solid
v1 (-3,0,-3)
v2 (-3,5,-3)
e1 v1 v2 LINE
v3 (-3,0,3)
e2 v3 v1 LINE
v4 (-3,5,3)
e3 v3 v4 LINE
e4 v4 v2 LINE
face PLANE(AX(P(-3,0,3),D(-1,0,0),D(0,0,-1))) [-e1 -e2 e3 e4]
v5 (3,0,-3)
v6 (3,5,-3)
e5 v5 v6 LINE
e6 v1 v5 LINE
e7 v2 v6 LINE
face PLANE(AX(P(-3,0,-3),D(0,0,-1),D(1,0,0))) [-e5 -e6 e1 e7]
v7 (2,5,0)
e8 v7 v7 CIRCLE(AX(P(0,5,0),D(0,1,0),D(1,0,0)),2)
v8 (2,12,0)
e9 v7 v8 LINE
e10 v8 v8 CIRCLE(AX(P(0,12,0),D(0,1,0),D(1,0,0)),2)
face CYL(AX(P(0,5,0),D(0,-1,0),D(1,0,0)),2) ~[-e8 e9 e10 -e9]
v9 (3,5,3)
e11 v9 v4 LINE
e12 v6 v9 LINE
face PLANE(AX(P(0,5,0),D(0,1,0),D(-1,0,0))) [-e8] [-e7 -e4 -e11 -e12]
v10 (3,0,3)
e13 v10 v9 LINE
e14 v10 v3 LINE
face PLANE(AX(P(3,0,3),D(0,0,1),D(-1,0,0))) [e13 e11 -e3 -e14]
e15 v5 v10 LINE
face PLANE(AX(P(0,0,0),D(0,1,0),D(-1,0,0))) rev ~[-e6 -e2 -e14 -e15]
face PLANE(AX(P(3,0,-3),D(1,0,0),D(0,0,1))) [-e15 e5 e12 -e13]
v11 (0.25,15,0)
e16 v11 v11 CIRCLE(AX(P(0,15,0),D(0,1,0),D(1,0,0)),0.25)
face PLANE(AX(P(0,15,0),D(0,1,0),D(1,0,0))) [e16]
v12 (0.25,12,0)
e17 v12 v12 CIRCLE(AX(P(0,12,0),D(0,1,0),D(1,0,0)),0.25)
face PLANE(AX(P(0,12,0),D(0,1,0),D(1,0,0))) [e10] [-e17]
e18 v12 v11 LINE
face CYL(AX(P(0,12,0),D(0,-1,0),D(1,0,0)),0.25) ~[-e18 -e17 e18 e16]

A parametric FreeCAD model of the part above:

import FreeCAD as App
import Part
import Sketcher
from FreeCAD import Vector

doc = App.newDocument("Part")
body = doc.addObject("PartDesign::Body", "Body")

sketch1 = body.newObject("Sketcher::SketchObject", "Sketch")
sketch1.AttachmentSupport = (doc.getObject("XZ_Plane"), [""])
sketch1.MapMode = "FlatFace"
sketch1.addGeometry([
    Part.LineSegment(Vector(-3, 3, 0), Vector(3, 3, 0)),
    Part.LineSegment(Vector(3, 3, 0), Vector(3, -3, 0)),
    Part.LineSegment(Vector(3, -3, 0), Vector(-3, -3, 0)),
    Part.LineSegment(Vector(-3, -3, 0), Vector(-3, 3, 0)),
], False)
sketch1.addConstraint([
    Sketcher.Constraint("Coincident", 0, 2, 1, 1),
    Sketcher.Constraint("Coincident", 1, 2, 2, 1),
    Sketcher.Constraint("Coincident", 2, 2, 3, 1),
    Sketcher.Constraint("Coincident", 3, 2, 0, 1),
    Sketcher.Constraint("Horizontal", 0),
    Sketcher.Constraint("Vertical", 1),
    Sketcher.Constraint("Horizontal", 2),
    Sketcher.Constraint("Vertical", 3),
    Sketcher.Constraint("Symmetric", 0, 2, 2, 2, -1, 1),
    Sketcher.Constraint("Equal", 2, 1),
    Sketcher.Constraint("DistanceX", 0, 1, 0, 2, 6.0),
])
pad1 = body.newObject("PartDesign::Pad", "Pad")
pad1.Profile = sketch1
pad1.Length = 5
pad1.Reversed = True

sketch2 = body.newObject("Sketcher::SketchObject", "Sketch001")
sketch2.AttachmentSupport = (doc.getObject("XZ_Plane"), [""])
sketch2.MapMode = "FlatFace"
sketch2.AttachmentOffset = App.Placement(Vector(0, 0, -5), App.Rotation())
sketch2.addGeometry(Part.Circle(Vector(0, 0, 0), Vector(0, 0, 1), 2), False)
sketch2.addConstraint([
    Sketcher.Constraint("Coincident", 0, 3, -1, 1),
    Sketcher.Constraint("Diameter", 0, 4.0),
])
pad2 = body.newObject("PartDesign::Pad", "Pad001")
pad2.Profile = sketch2
pad2.Length = 7
pad2.Reversed = True

sketch3 = body.newObject("Sketcher::SketchObject", "Sketch002")
sketch3.AttachmentSupport = (doc.getObject("XZ_Plane"), [""])
sketch3.MapMode = "FlatFace"
sketch3.AttachmentOffset = App.Placement(Vector(0, 0, -12), App.Rotation())
sketch3.addGeometry(Part.Circle(Vector(0, 0, 0), Vector(0, 0, 1), 0.25), False)
sketch3.addConstraint([
    Sketcher.Constraint("Coincident", 0, 3, -1, 1),
    Sketcher.Constraint("Diameter", 0, 0.5),
])
pad3 = body.newObject("PartDesign::Pad", "Pad002")
pad3.Profile = sketch3
pad3.Length = 3
pad3.Reversed = True

doc.recompute()
